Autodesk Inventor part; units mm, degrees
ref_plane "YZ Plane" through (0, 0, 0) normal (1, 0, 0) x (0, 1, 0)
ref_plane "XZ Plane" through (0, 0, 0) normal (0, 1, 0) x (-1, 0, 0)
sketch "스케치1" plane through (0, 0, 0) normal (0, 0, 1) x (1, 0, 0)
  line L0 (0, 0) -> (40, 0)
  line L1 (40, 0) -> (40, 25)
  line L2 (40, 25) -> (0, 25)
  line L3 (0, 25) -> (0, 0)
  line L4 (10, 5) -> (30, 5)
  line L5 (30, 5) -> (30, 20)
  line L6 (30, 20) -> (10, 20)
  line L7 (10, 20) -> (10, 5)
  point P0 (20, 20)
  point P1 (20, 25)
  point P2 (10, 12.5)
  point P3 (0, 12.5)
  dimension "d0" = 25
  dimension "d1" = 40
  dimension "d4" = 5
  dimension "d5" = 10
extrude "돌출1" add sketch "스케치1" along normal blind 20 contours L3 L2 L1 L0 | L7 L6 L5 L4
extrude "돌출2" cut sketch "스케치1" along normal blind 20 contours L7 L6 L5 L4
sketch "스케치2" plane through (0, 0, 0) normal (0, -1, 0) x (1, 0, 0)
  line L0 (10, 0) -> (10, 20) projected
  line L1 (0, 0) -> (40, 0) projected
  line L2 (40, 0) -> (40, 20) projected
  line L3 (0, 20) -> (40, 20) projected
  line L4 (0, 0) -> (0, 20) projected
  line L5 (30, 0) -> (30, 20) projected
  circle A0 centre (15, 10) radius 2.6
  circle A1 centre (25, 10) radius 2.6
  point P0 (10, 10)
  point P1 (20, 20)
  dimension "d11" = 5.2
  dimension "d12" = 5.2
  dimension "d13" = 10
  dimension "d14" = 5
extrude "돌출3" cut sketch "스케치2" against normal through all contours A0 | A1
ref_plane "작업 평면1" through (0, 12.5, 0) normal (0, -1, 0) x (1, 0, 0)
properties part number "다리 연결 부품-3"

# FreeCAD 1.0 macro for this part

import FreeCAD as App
import Part
import Sketcher
from FreeCAD import Vector

doc = App.newDocument("Part")
body = doc.addObject("PartDesign::Body", "Body")

sketch1 = body.newObject("Sketcher::SketchObject", "Sketch")
sketch1.AttachmentSupport = (doc.getObject("XY_Plane"), [""])
sketch1.MapMode = "FlatFace"
sketch1.addGeometry(Part.LineSegment(Vector(0, 25, 0), Vector(0, 0, 0)), False)
sketch1.addGeometry(Part.LineSegment(Vector(0, 0, 0), Vector(40, 0, 0)), False)
sketch1.addGeometry(Part.LineSegment(Vector(40, 0, 0), Vector(40, 25, 0)), False)
sketch1.addGeometry(Part.LineSegment(Vector(40, 25, 0), Vector(0, 25, 0)), False)
sketch1.addConstraint(Sketcher.Constraint("Coincident", 0, 2, 1, 1))
sketch1.addConstraint(Sketcher.Constraint("Coincident", 1, 2, 2, 1))
sketch1.addConstraint(Sketcher.Constraint("Coincident", 2, 2, 3, 1))
sketch1.addConstraint(Sketcher.Constraint("Coincident", 3, 2, 0, 1))
sketch1.addConstraint(Sketcher.Constraint("Vertical", 0))
sketch1.addConstraint(Sketcher.Constraint("Horizontal", 1))
sketch1.addConstraint(Sketcher.Constraint("Vertical", 2))
sketch1.addConstraint(Sketcher.Constraint("Horizontal", 3))
sketch1.addConstraint(Sketcher.Constraint("Coincident", 0, 2, -1, 1))
sketch1.addConstraint(Sketcher.Constraint("DistanceX", 1, 1, 1, 2, 40.0))
sketch1.addConstraint(Sketcher.Constraint("DistanceY", 0, 2, 0, 1, 25.0))
pad1 = body.newObject("PartDesign::Pad", "Pad")
pad1.Profile = sketch1
pad1.Length = 20

sketch2 = body.newObject("Sketcher::SketchObject", "Sketch001")
sketch2.AttachmentSupport = (doc.getObject("XY_Plane"), [""])
sketch2.MapMode = "FlatFace"
sketch2.addGeometry(Part.LineSegment(Vector(10, 20, 0), Vector(10, 5, 0)), False)
sketch2.addGeometry(Part.LineSegment(Vector(10, 5, 0), Vector(30, 5, 0)), False)
sketch2.addGeometry(Part.LineSegment(Vector(30, 5, 0), Vector(30, 20, 0)), False)
sketch2.addGeometry(Part.LineSegment(Vector(30, 20, 0), Vector(10, 20, 0)), False)
sketch2.addConstraint(Sketcher.Constraint("Coincident", 0, 2, 1, 1))
sketch2.addConstraint(Sketcher.Constraint("Coincident", 1, 2, 2, 1))
sketch2.addConstraint(Sketcher.Constraint("Coincident", 2, 2, 3, 1))
sketch2.addConstraint(Sketcher.Constraint("Coincident", 3, 2, 0, 1))
sketch2.addConstraint(Sketcher.Constraint("Vertical", 0))
sketch2.addConstraint(Sketcher.Constraint("Horizontal", 1))
sketch2.addConstraint(Sketcher.Constraint("Vertical", 2))
sketch2.addConstraint(Sketcher.Constraint("Horizontal", 3))
sketch2.addConstraint(Sketcher.Constraint("DistanceX", -1, 1, 0, 2, 10.0))
sketch2.addConstraint(Sketcher.Constraint("DistanceY", -1, 1, 0, 2, 5.0))
sketch2.addConstraint(Sketcher.Constraint("DistanceX", 1, 1, 1, 2, 20.0))
sketch2.addConstraint(Sketcher.Constraint("DistanceY", 0, 2, 0, 1, 15.0))
pocket1 = body.newObject("PartDesign::Pocket", "Pocket")
pocket1.Profile = sketch2
pocket1.Length = 20
pocket1.Reversed = True

sketch3 = body.newObject("Sketcher::SketchObject", "Sketch002")
sketch3.AttachmentSupport = (doc.getObject("XZ_Plane"), [""])
sketch3.MapMode = "FlatFace"
sketch3.addGeometry(Part.Circle(Vector(15, 10, 0), Vector(0, 0, 1), 2.6), False)
sketch3.addGeometry(Part.Circle(Vector(25, 10, 0), Vector(0, 0, 1), 2.6), False)
sketch3.addConstraint(Sketcher.Constraint("Equal", 0, 1))
sketch3.addConstraint(Sketcher.Constraint("Horizontal", 0, 3, 1, 3))
sketch3.addConstraint(Sketcher.Constraint("Diameter", 0, 5.2))
sketch3.addConstraint(Sketcher.Constraint("DistanceY", -1, 1, 0, 3, 10.0))
sketch3.addConstraint(Sketcher.Constraint("DistanceX", 0, 3, 1, 3, 10.0))
sketch3.addConstraint(Sketcher.Constraint("DistanceX", -1, 1, 0, 3, 15.0))
pocket2 = body.newObject("PartDesign::Pocket", "Pocket001")
pocket2.Profile = sketch3
pocket2.Type = "ThroughAll"

doc.recompute()
